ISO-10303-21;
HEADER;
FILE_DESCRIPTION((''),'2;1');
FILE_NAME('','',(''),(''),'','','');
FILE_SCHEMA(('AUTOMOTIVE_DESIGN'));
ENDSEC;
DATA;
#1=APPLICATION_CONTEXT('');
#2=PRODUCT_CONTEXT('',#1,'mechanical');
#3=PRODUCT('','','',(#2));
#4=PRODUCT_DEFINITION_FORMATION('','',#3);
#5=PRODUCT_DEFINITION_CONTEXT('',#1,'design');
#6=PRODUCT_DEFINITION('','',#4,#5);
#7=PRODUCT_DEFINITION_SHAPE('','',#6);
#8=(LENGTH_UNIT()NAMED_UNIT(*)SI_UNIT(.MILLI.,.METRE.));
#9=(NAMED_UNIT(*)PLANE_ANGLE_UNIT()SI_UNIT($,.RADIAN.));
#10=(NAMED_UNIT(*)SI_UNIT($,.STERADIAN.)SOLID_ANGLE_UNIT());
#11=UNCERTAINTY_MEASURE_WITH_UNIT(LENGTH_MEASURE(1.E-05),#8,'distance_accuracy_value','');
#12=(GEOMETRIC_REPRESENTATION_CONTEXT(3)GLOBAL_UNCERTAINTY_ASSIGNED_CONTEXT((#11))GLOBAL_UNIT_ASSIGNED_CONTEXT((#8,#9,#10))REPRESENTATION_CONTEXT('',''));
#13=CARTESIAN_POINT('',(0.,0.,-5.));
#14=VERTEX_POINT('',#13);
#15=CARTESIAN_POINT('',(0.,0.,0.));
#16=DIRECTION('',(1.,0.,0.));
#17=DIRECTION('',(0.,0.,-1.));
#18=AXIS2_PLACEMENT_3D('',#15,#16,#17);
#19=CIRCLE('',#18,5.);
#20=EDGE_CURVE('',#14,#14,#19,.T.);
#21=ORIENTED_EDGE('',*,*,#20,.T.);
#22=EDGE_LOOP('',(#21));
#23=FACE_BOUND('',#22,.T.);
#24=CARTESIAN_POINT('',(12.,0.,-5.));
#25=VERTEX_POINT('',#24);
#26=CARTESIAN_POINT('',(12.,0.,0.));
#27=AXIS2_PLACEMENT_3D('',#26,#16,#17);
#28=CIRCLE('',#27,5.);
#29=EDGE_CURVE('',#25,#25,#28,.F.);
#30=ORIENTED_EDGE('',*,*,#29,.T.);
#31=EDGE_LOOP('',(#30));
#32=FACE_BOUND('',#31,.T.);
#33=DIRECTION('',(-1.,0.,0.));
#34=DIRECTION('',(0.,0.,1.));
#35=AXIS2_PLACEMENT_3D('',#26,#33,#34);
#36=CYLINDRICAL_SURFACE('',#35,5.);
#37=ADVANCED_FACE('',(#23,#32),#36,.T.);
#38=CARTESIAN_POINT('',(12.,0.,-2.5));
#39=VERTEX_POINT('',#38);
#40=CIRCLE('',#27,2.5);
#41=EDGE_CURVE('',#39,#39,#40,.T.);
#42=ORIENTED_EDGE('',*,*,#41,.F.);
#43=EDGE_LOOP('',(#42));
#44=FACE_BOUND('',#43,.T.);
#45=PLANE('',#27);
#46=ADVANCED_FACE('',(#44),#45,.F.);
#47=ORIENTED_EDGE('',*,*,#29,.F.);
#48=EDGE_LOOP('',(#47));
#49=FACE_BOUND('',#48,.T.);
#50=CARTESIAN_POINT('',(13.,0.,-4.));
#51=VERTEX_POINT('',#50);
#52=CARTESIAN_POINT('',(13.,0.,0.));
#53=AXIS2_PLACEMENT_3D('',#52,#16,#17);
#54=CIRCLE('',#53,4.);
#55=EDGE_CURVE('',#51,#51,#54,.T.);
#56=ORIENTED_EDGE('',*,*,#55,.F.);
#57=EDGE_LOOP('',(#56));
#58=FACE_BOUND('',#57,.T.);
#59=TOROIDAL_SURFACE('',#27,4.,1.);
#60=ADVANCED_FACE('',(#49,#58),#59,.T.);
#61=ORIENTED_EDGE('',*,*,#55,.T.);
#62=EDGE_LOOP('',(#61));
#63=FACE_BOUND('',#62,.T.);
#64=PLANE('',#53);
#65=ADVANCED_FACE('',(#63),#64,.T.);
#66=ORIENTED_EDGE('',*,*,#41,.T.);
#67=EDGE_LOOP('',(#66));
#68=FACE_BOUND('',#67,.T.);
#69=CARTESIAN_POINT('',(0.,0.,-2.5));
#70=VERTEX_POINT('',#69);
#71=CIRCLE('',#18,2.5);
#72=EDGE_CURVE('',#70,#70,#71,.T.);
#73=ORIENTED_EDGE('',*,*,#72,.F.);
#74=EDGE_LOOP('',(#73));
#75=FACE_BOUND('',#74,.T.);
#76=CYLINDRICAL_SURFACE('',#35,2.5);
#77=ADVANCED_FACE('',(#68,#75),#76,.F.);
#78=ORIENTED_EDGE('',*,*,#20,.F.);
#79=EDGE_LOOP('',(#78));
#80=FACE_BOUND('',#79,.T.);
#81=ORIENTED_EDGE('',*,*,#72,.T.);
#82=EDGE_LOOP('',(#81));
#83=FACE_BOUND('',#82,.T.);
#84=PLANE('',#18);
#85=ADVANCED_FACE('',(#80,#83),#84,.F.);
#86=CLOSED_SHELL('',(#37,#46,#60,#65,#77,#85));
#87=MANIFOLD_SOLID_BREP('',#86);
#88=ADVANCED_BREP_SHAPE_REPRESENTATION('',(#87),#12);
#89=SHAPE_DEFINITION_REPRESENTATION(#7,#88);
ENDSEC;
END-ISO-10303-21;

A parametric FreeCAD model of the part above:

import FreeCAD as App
import Part
import Sketcher

V = App.Vector
Q = App.Units.Quantity


def edges_at(feature, points):
    """Names of the edges that pass closest to the given points."""
    edges = feature.Shape.Edges
    near = lambda p: min(range(len(edges)), key=lambda i: edges[i].distToShape(Part.Vertex(*p))[0])
    return sorted({f"Edge{near(p) + 1}" for p in points})

doc = App.newDocument("Part")
body = doc.addObject("PartDesign::Body", "Body")

# Sketch on YZ plane
sketch1 = body.newObject("Sketcher::SketchObject", "Sketch")
sketch1.AttachmentSupport = (doc.getObject("YZ_Plane"), [""])
sketch1.MapMode = "FlatFace"
sketch1.addGeometry([
    Part.Circle(V(0, 0, 0), V(0, 0, 1), 5),
    Part.Circle(V(0, 0, 0), V(0, 0, 1), 2.5),
], False)
sketch1.addConstraint([
    Sketcher.Constraint("Coincident", 0, 3, -1, 1),
    Sketcher.Constraint("Coincident", 1, 3, -1, 1),
    Sketcher.Constraint("Diameter", 0, Q("10 mm")),
    Sketcher.Constraint("Diameter", 1, Q("5 mm")),
])
pad1 = body.newObject("PartDesign::Pad", "Pad")
pad1.Profile = sketch1
pad1.Length = 12

# Sketch on YZ plane
sketch2 = body.newObject("Sketcher::SketchObject", "Sketch001")
sketch2.AttachmentSupport = (doc.getObject("YZ_Plane"), [""])
sketch2.MapMode = "FlatFace"
sketch2.AttachmentOffset = App.Placement(V(0, 0, 12), App.Rotation())
sketch2.addGeometry(Part.Circle(V(0, 0, 0), V(0, 0, 1), 5), False)
sketch2.addConstraint([
    Sketcher.Constraint("Coincident", 0, 3, -1, 1),
    Sketcher.Constraint("Diameter", 0, Q("10 mm")),
])
pad2 = body.newObject("PartDesign::Pad", "Pad001")
pad2.Profile = sketch2
pad2.Length = 1
doc.recompute()

fillet = body.newObject("PartDesign::Fillet", "Fillet")
fillet.Base = (pad2, edges_at(pad2, [(13, 0, 5)]))
fillet.Radius = 1

doc.recompute()
